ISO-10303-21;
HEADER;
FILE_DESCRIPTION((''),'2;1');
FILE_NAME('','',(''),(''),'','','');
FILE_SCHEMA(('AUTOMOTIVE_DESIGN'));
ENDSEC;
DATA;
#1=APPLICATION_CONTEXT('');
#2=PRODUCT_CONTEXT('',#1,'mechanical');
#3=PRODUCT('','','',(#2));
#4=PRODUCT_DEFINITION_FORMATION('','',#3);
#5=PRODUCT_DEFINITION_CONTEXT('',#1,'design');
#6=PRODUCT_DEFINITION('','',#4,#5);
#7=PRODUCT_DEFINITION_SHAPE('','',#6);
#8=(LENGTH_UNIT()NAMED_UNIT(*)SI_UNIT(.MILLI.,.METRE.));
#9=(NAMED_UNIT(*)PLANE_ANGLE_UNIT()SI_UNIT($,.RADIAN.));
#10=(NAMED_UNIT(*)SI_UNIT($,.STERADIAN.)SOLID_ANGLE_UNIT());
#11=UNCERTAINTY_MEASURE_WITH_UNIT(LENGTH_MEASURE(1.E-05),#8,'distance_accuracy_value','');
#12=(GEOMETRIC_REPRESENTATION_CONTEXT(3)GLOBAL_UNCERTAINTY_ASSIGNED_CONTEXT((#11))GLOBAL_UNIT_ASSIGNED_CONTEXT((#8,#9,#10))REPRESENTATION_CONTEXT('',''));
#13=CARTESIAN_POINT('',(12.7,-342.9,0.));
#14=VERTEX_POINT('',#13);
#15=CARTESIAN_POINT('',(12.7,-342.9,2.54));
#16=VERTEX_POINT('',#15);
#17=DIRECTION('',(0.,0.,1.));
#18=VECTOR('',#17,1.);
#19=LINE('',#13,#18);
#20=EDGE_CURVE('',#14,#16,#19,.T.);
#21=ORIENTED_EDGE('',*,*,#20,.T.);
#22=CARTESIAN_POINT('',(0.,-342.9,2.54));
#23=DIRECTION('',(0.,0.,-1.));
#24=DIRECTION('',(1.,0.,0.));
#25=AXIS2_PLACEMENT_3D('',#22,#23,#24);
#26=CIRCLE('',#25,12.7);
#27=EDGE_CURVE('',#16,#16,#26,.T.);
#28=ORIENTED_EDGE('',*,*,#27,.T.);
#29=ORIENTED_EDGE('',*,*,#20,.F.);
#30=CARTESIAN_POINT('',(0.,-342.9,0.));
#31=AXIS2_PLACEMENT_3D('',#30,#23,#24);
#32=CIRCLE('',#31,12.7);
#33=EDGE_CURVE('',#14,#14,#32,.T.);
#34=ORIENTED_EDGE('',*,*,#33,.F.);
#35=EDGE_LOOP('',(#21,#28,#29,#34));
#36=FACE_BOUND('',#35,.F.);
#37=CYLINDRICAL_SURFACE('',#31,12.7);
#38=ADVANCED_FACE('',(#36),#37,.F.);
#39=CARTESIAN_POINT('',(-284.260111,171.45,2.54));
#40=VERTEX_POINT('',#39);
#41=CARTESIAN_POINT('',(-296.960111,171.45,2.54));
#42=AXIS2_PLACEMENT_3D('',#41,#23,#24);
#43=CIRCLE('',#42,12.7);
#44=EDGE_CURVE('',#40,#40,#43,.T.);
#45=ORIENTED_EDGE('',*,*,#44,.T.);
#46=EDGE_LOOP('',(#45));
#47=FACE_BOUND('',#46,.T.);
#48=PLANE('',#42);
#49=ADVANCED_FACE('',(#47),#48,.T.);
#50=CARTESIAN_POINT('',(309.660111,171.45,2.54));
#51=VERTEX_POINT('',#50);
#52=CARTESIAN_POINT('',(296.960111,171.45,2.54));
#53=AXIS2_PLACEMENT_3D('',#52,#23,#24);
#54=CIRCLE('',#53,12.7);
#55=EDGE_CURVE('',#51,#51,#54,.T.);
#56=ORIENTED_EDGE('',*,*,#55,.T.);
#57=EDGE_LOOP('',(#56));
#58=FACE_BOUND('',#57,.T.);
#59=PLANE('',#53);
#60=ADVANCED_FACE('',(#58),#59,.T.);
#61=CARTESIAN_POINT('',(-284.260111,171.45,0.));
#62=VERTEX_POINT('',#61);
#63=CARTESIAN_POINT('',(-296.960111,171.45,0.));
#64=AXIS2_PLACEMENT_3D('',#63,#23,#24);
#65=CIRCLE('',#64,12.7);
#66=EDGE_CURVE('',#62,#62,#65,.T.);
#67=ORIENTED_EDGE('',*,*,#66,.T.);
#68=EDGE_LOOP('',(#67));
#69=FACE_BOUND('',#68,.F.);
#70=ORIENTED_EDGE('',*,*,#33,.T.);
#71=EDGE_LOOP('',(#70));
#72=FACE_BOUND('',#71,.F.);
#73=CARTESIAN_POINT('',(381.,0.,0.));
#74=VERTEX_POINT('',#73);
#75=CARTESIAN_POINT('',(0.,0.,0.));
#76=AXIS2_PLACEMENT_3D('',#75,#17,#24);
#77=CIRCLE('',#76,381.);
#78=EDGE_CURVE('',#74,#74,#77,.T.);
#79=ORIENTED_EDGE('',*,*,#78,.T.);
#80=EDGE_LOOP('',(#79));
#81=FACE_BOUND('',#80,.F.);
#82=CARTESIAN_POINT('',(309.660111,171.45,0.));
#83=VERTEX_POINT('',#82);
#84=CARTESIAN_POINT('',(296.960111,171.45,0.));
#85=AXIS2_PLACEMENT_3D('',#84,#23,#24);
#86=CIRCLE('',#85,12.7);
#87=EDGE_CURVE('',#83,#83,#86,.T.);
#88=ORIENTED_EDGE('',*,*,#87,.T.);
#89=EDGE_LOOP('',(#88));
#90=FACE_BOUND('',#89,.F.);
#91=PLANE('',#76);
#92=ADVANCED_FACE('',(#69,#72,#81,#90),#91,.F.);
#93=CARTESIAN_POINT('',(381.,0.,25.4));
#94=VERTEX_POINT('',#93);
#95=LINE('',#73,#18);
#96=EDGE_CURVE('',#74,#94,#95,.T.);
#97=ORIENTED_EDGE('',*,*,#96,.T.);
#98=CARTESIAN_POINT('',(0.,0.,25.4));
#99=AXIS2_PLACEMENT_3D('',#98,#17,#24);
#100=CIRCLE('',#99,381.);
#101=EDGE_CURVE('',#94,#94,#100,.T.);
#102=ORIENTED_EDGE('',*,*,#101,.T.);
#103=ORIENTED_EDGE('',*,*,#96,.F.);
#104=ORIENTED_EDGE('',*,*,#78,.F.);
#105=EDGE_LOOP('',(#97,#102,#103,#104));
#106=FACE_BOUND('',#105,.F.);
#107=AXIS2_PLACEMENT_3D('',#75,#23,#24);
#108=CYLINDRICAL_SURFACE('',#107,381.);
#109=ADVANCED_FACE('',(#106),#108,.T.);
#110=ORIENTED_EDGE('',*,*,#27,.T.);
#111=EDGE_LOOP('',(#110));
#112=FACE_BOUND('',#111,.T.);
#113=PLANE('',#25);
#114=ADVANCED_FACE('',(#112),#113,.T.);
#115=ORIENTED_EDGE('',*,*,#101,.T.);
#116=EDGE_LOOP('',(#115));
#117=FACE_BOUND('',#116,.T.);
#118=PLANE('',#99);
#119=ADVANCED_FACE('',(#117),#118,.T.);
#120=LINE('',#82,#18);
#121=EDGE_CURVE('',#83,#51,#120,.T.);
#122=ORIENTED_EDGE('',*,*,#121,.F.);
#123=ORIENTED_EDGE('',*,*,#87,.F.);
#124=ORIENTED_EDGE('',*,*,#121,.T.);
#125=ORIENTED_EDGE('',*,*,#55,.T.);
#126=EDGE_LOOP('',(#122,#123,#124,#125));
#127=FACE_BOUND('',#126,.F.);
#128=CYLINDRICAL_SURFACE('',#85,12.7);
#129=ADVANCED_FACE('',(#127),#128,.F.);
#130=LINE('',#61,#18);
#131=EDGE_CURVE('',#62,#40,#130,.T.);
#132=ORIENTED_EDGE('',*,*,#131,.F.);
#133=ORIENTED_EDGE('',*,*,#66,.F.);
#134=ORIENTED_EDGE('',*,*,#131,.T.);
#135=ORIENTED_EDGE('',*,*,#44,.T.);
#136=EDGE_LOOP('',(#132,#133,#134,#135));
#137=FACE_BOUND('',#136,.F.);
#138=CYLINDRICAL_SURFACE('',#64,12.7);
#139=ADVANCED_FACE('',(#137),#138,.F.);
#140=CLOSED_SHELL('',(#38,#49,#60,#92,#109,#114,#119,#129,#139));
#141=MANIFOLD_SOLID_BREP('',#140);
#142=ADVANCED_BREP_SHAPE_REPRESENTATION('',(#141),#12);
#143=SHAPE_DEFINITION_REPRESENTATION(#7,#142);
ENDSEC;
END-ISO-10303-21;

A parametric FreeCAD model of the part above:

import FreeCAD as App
import Part
import Sketcher
Q = App.Units.Quantity

doc = App.newDocument("Part")
params = doc.addObject("Spreadsheet::Sheet", "Params")
for row, (alias, value) in enumerate([
    ("sketch1_diameter", "30 in"),
    ("pad1_length", "1 in"),
    ("sketch2_diameter", "1 in"),
    ("pocket1_length", "0.1 in"),
], start=1):
    params.set(f"A{row}", alias)
    params.set(f"B{row}", "=" + value)
    params.setAlias(f"B{row}", alias)

body = doc.addObject("PartDesign::Body", "Body")

# Sketch on XY plane
sketch1 = body.newObject("Sketcher::SketchObject", "Sketch")
sketch1.AttachmentSupport = (doc.getObject("XY_Plane"), [""])
sketch1.MapMode = "FlatFace"
sketch1.addGeometry(Part.Circle(App.Vector(0, 0, 0), App.Vector(0, 0, 1), 381), False)
sketch1.addConstraint(Sketcher.Constraint("Coincident", 0, 3, -1, 1))
sketch1.addConstraint(Sketcher.Constraint("Diameter", 0, Q("30 in")))
sketch1.setExpression("Constraints[1]", "Params.sketch1_diameter")
pad1 = body.newObject("PartDesign::Pad", "Pad")
pad1.Profile = sketch1
pad1.setExpression("Length", "Params.pad1_length")

# Sketch on XY plane
sketch2 = body.newObject("Sketcher::SketchObject", "Sketch001")
sketch2.AttachmentSupport = (doc.getObject("XY_Plane"), [""])
sketch2.MapMode = "FlatFace"
sketch2.addGeometry(Part.Circle(App.Vector(0, -343, 0), App.Vector(0, 0, 1), 13), False)
sketch2.addGeometry(Part.Circle(App.Vector(-297, 171, 0), App.Vector(0, 0, 1), 13), False)
sketch2.addGeometry(Part.Circle(App.Vector(297, 171, 0), App.Vector(0, 0, 1), 13), False)
sketch2.addConstraint(Sketcher.Constraint("Equal", 0, 1))
sketch2.addConstraint(Sketcher.Constraint("Equal", 1, 2))
sketch2.addConstraint(Sketcher.Constraint("Symmetric", 1, 3, 2, 3, -2))
sketch2.addConstraint(Sketcher.Constraint("PointOnObject", 0, 3, -2))
sketch2.addConstraint(Sketcher.Constraint("Diameter", 0, Q("1 in")))
sketch2.addConstraint(Sketcher.Constraint("DistanceY", 0, 3, -1, 1, Q("13.5 in")))
sketch2.addConstraint(Sketcher.Constraint("DistanceY", -1, 1, 1, 3, Q("6.75 in")))
sketch2.addConstraint(Sketcher.Constraint("DistanceX", 1, 3, -1, 1, 296.960111))
sketch2.setExpression("Constraints[4]", "Params.sketch2_diameter")
pocket1 = body.newObject("PartDesign::Pocket", "Pocket")
pocket1.Profile = sketch2
pocket1.setExpression("Length", "Params.pocket1_length")
pocket1.Reversed = True

doc.recompute()
